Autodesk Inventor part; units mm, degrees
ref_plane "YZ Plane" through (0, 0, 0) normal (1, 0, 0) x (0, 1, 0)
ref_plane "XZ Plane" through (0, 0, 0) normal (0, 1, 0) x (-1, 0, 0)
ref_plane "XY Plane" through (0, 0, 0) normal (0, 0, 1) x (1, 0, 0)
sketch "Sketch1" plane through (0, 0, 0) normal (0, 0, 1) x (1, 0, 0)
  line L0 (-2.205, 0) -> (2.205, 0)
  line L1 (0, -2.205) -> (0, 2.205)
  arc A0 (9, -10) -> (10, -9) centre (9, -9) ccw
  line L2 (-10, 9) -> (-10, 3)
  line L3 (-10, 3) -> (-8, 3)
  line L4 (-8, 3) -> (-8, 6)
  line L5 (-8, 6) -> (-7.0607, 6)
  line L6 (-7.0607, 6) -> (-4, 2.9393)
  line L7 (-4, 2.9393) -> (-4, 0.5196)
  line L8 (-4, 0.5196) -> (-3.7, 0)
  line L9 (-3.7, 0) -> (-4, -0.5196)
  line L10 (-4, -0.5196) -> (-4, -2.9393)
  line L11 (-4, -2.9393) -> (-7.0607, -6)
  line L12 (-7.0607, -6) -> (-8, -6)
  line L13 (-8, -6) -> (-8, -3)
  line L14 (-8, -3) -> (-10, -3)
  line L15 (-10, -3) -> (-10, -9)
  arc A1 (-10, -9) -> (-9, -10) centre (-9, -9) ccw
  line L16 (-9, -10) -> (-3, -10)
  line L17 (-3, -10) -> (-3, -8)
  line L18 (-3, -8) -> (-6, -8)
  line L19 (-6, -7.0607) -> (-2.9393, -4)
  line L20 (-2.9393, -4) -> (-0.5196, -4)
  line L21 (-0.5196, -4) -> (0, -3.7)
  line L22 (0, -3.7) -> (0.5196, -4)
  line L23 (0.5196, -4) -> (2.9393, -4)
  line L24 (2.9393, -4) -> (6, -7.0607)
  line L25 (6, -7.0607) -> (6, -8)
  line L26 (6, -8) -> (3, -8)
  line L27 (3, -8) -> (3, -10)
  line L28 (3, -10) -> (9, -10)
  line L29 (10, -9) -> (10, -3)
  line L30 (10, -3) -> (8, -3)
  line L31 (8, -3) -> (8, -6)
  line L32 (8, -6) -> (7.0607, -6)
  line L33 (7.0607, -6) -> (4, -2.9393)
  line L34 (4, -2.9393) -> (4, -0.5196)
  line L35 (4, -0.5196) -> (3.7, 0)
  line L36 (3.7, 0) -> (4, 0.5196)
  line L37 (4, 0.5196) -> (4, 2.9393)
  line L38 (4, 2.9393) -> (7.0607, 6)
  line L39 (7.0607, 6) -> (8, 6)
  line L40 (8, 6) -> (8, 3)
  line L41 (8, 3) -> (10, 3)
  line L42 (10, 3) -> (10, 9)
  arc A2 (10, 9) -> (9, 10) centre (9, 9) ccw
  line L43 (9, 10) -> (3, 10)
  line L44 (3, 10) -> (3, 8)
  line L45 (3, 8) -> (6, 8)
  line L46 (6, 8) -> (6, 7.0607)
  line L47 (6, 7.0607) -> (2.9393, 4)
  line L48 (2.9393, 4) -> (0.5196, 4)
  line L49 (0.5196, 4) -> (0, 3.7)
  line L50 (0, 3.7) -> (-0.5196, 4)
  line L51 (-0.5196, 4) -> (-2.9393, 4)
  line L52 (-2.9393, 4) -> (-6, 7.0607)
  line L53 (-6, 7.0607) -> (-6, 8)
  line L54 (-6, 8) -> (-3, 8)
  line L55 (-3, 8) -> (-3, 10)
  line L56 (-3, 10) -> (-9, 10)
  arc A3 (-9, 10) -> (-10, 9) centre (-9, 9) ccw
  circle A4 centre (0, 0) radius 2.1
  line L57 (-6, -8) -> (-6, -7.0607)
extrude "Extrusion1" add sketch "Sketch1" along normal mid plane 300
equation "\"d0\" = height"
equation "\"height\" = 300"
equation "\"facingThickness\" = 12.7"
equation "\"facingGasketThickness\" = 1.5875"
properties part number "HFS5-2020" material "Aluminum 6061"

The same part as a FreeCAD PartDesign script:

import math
import FreeCAD as App
import Part
import Sketcher
from FreeCAD import Vector
Q = App.Units.Quantity

doc = App.newDocument("Part")
body = doc.addObject("PartDesign::Body", "Body")

# Sketch on XY plane
sketch1 = doc.addObject("Sketcher::SketchObject", "Sketch")
body.addObject(sketch1)
sketch1.AttachmentSupport = (doc.XY_Plane, [""])
sketch1.MapMode = "FlatFace"
sketch1.addGeometry(Part.LineSegment(Vector(3, -10, 0), Vector(9, -10, 0)), False)
sketch1.addGeometry(Part.ArcOfCircle(Part.Circle(Vector(9, -9, 0), Vector(0, 0, 1), 1), math.radians(-90), math.radians(0)), False)
sketch1.addGeometry(Part.LineSegment(Vector(10, -9, 0), Vector(10, -3, 0)), False)
sketch1.addGeometry(Part.LineSegment(Vector(10, -3, 0), Vector(8, -3, 0)), False)
sketch1.addGeometry(Part.LineSegment(Vector(8, -3, 0), Vector(8, -6, 0)), False)
sketch1.addGeometry(Part.LineSegment(Vector(8, -6, 0), Vector(7.0607, -6, 0)), False)
sketch1.addGeometry(Part.LineSegment(Vector(7.0607, -6, 0), Vector(4, -2.9393, 0)), False)
sketch1.addGeometry(Part.LineSegment(Vector(4, -2.9393, 0), Vector(4, -0.5196, 0)), False)
sketch1.addGeometry(Part.LineSegment(Vector(4, -0.5196, 0), Vector(3.7, 0, 0)), False)
sketch1.addGeometry(Part.LineSegment(Vector(3.7, 0, 0), Vector(4, 0.5196, 0)), False)
sketch1.addGeometry(Part.LineSegment(Vector(4, 0.5196, 0), Vector(4, 2.9393, 0)), False)
sketch1.addGeometry(Part.LineSegment(Vector(4, 2.9393, 0), Vector(7.0607, 6, 0)), False)
sketch1.addGeometry(Part.LineSegment(Vector(7.0607, 6, 0), Vector(8, 6, 0)), False)
sketch1.addGeometry(Part.LineSegment(Vector(8, 6, 0), Vector(8, 3, 0)), False)
sketch1.addGeometry(Part.LineSegment(Vector(8, 3, 0), Vector(10, 3, 0)), False)
sketch1.addGeometry(Part.LineSegment(Vector(10, 3, 0), Vector(10, 9, 0)), False)
sketch1.addGeometry(Part.ArcOfCircle(Part.Circle(Vector(9, 9, 0), Vector(0, 0, 1), 1), math.radians(0), math.radians(90)), False)
sketch1.addGeometry(Part.LineSegment(Vector(9, 10, 0), Vector(3, 10, 0)), False)
sketch1.addGeometry(Part.LineSegment(Vector(3, 10, 0), Vector(3, 8, 0)), False)
sketch1.addGeometry(Part.LineSegment(Vector(3, 8, 0), Vector(6, 8, 0)), False)
sketch1.addGeometry(Part.LineSegment(Vector(6, 8, 0), Vector(6, 7.0607, 0)), False)
sketch1.addGeometry(Part.LineSegment(Vector(6, 7.0607, 0), Vector(2.9393, 4, 0)), False)
sketch1.addGeometry(Part.LineSegment(Vector(2.9393, 4, 0), Vector(0.5196, 4, 0)), False)
sketch1.addGeometry(Part.LineSegment(Vector(0.5196, 4, 0), Vector(0, 3.7, 0)), False)
sketch1.addGeometry(Part.LineSegment(Vector(0, 3.7, 0), Vector(-0.5196, 4, 0)), False)
sketch1.addGeometry(Part.LineSegment(Vector(-0.5196, 4, 0), Vector(-2.9393, 4, 0)), False)
sketch1.addGeometry(Part.LineSegment(Vector(-2.9393, 4, 0), Vector(-6, 7.0607, 0)), False)
sketch1.addGeometry(Part.LineSegment(Vector(-6, 7.0607, 0), Vector(-6, 8, 0)), False)
sketch1.addGeometry(Part.LineSegment(Vector(-6, 8, 0), Vector(-3, 8, 0)), False)
sketch1.addGeometry(Part.LineSegment(Vector(-3, 8, 0), Vector(-3, 10, 0)), False)
sketch1.addGeometry(Part.LineSegment(Vector(-3, 10, 0), Vector(-9, 10, 0)), False)
sketch1.addGeometry(Part.ArcOfCircle(Part.Circle(Vector(-9, 9, 0), Vector(0, 0, 1), 1), math.radians(90), math.radians(180)), False)
sketch1.addGeometry(Part.LineSegment(Vector(-10, 9, 0), Vector(-10, 3, 0)), False)
sketch1.addGeometry(Part.LineSegment(Vector(-10, 3, 0), Vector(-8, 3, 0)), False)
sketch1.addGeometry(Part.LineSegment(Vector(-8, 3, 0), Vector(-8, 6, 0)), False)
sketch1.addGeometry(Part.LineSegment(Vector(-8, 6, 0), Vector(-7.0607, 6, 0)), False)
sketch1.addGeometry(Part.LineSegment(Vector(-7.0607, 6, 0), Vector(-4, 2.9393, 0)), False)
sketch1.addGeometry(Part.LineSegment(Vector(-4, 2.9393, 0), Vector(-4, 0.5196, 0)), False)
sketch1.addGeometry(Part.LineSegment(Vector(-4, 0.5196, 0), Vector(-3.7, 0, 0)), False)
sketch1.addGeometry(Part.LineSegment(Vector(-3.7, 0, 0), Vector(-4, -0.5196, 0)), False)
sketch1.addGeometry(Part.LineSegment(Vector(-4, -0.5196, 0), Vector(-4, -2.9393, 0)), False)
sketch1.addGeometry(Part.LineSegment(Vector(-4, -2.9393, 0), Vector(-7.0607, -6, 0)), False)
sketch1.addGeometry(Part.LineSegment(Vector(-7.0607, -6, 0), Vector(-8, -6, 0)), False)
sketch1.addGeometry(Part.LineSegment(Vector(-8, -6, 0), Vector(-8, -3, 0)), False)
sketch1.addGeometry(Part.LineSegment(Vector(-8, -3, 0), Vector(-10, -3, 0)), False)
sketch1.addGeometry(Part.LineSegment(Vector(-10, -3, 0), Vector(-10, -9, 0)), False)
sketch1.addGeometry(Part.ArcOfCircle(Part.Circle(Vector(-9, -9, 0), Vector(0, 0, 1), 1), math.radians(180), math.radians(270)), False)
sketch1.addGeometry(Part.LineSegment(Vector(-9, -10, 0), Vector(-3, -10, 0)), False)
sketch1.addGeometry(Part.LineSegment(Vector(-3, -10, 0), Vector(-3, -8, 0)), False)
sketch1.addGeometry(Part.LineSegment(Vector(-3, -8, 0), Vector(-6, -8, 0)), False)
sketch1.addGeometry(Part.LineSegment(Vector(-6, -8, 0), Vector(-6, -7.0607, 0)), False)
sketch1.addGeometry(Part.LineSegment(Vector(-6, -7.0607, 0), Vector(-2.9393, -4, 0)), False)
sketch1.addGeometry(Part.LineSegment(Vector(-2.9393, -4, 0), Vector(-0.5196, -4, 0)), False)
sketch1.addGeometry(Part.LineSegment(Vector(-0.5196, -4, 0), Vector(0, -3.7, 0)), False)
sketch1.addGeometry(Part.LineSegment(Vector(0, -3.7, 0), Vector(0.5196, -4, 0)), False)
sketch1.addGeometry(Part.LineSegment(Vector(0.5196, -4, 0), Vector(2.9393, -4, 0)), False)
sketch1.addGeometry(Part.LineSegment(Vector(2.9393, -4, 0), Vector(6, -7.0607, 0)), False)
sketch1.addGeometry(Part.LineSegment(Vector(6, -7.0607, 0), Vector(6, -8, 0)), False)
sketch1.addGeometry(Part.LineSegment(Vector(6, -8, 0), Vector(3, -8, 0)), False)
sketch1.addGeometry(Part.LineSegment(Vector(3, -8, 0), Vector(3, -10, 0)), False)
sketch1.addGeometry(Part.Circle(Vector(0, 0, 0), Vector(0, 0, 1), 2.1), False)
sketch1.addConstraint(Sketcher.Constraint("Tangent", 0, 2, 1, 1))
sketch1.addConstraint(Sketcher.Constraint("Tangent", 1, 2, 2, 1))
sketch1.addConstraint(Sketcher.Constraint("Coincident", 2, 2, 3, 1))
sketch1.addConstraint(Sketcher.Constraint("Coincident", 3, 2, 4, 1))
sketch1.addConstraint(Sketcher.Constraint("Coincident", 4, 2, 5, 1))
sketch1.addConstraint(Sketcher.Constraint("Coincident", 5, 2, 6, 1))
sketch1.addConstraint(Sketcher.Constraint("Coincident", 6, 2, 7, 1))
sketch1.addConstraint(Sketcher.Constraint("Coincident", 7, 2, 8, 1))
sketch1.addConstraint(Sketcher.Constraint("Coincident", 8, 2, 9, 1))
sketch1.addConstraint(Sketcher.Constraint("Coincident", 9, 2, 10, 1))
sketch1.addConstraint(Sketcher.Constraint("Coincident", 10, 2, 11, 1))
sketch1.addConstraint(Sketcher.Constraint("Coincident", 11, 2, 12, 1))
sketch1.addConstraint(Sketcher.Constraint("Coincident", 12, 2, 13, 1))
sketch1.addConstraint(Sketcher.Constraint("Coincident", 13, 2, 14, 1))
sketch1.addConstraint(Sketcher.Constraint("Coincident", 14, 2, 15, 1))
sketch1.addConstraint(Sketcher.Constraint("Tangent", 15, 2, 16, 1))
sketch1.addConstraint(Sketcher.Constraint("Tangent", 16, 2, 17, 1))
sketch1.addConstraint(Sketcher.Constraint("Coincident", 17, 2, 18, 1))
sketch1.addConstraint(Sketcher.Constraint("Coincident", 18, 2, 19, 1))
sketch1.addConstraint(Sketcher.Constraint("Coincident", 19, 2, 20, 1))
sketch1.addConstraint(Sketcher.Constraint("Coincident", 20, 2, 21, 1))
sketch1.addConstraint(Sketcher.Constraint("Coincident", 21, 2, 22, 1))
sketch1.addConstraint(Sketcher.Constraint("Coincident", 22, 2, 23, 1))
sketch1.addConstraint(Sketcher.Constraint("Coincident", 23, 2, 24, 1))
sketch1.addConstraint(Sketcher.Constraint("Coincident", 24, 2, 25, 1))
sketch1.addConstraint(Sketcher.Constraint("Coincident", 25, 2, 26, 1))
sketch1.addConstraint(Sketcher.Constraint("Coincident", 26, 2, 27, 1))
sketch1.addConstraint(Sketcher.Constraint("Coincident", 27, 2, 28, 1))
sketch1.addConstraint(Sketcher.Constraint("Coincident", 28, 2, 29, 1))
sketch1.addConstraint(Sketcher.Constraint("Coincident", 29, 2, 30, 1))
sketch1.addConstraint(Sketcher.Constraint("Tangent", 30, 2, 31, 1))
sketch1.addConstraint(Sketcher.Constraint("Tangent", 31, 2, 32, 1))
sketch1.addConstraint(Sketcher.Constraint("Coincident", 32, 2, 33, 1))
sketch1.addConstraint(Sketcher.Constraint("Coincident", 33, 2, 34, 1))
sketch1.addConstraint(Sketcher.Constraint("Coincident", 34, 2, 35, 1))
sketch1.addConstraint(Sketcher.Constraint("Coincident", 35, 2, 36, 1))
sketch1.addConstraint(Sketcher.Constraint("Coincident", 36, 2, 37, 1))
sketch1.addConstraint(Sketcher.Constraint("Coincident", 37, 2, 38, 1))
sketch1.addConstraint(Sketcher.Constraint("Coincident", 38, 2, 39, 1))
sketch1.addConstraint(Sketcher.Constraint("Coincident", 39, 2, 40, 1))
sketch1.addConstraint(Sketcher.Constraint("Coincident", 40, 2, 41, 1))
sketch1.addConstraint(Sketcher.Constraint("Coincident", 41, 2, 42, 1))
sketch1.addConstraint(Sketcher.Constraint("Coincident", 42, 2, 43, 1))
sketch1.addConstraint(Sketcher.Constraint("Coincident", 43, 2, 44, 1))
sketch1.addConstraint(Sketcher.Constraint("Coincident", 44, 2, 45, 1))
sketch1.addConstraint(Sketcher.Constraint("Tangent", 45, 2, 46, 1))
sketch1.addConstraint(Sketcher.Constraint("Tangent", 46, 2, 47, 1))
sketch1.addConstraint(Sketcher.Constraint("Coincident", 47, 2, 48, 1))
sketch1.addConstraint(Sketcher.Constraint("Coincident", 48, 2, 49, 1))
sketch1.addConstraint(Sketcher.Constraint("Coincident", 49, 2, 50, 1))
sketch1.addConstraint(Sketcher.Constraint("Coincident", 50, 2, 51, 1))
sketch1.addConstraint(Sketcher.Constraint("Coincident", 51, 2, 52, 1))
sketch1.addConstraint(Sketcher.Constraint("Coincident", 52, 2, 53, 1))
sketch1.addConstraint(Sketcher.Constraint("Coincident", 53, 2, 54, 1))
sketch1.addConstraint(Sketcher.Constraint("Coincident", 54, 2, 55, 1))
sketch1.addConstraint(Sketcher.Constraint("Coincident", 55, 2, 56, 1))
sketch1.addConstraint(Sketcher.Constraint("Coincident", 56, 2, 57, 1))
sketch1.addConstraint(Sketcher.Constraint("Coincident", 57, 2, 58, 1))
sketch1.addConstraint(Sketcher.Constraint("Coincident", 58, 2, 59, 1))
sketch1.addConstraint(Sketcher.Constraint("Coincident", 59, 2, 0, 1))
sketch1.addConstraint(Sketcher.Constraint("Horizontal", 0))
sketch1.addConstraint(Sketcher.Constraint("Vertical", 2))
sketch1.addConstraint(Sketcher.Constraint("Horizontal", 3))
sketch1.addConstraint(Sketcher.Constraint("Vertical", 4))
sketch1.addConstraint(Sketcher.Constraint("Horizontal", 5))
sketch1.addConstraint(Sketcher.Constraint("Vertical", 7))
sketch1.addConstraint(Sketcher.Constraint("Vertical", 10))
sketch1.addConstraint(Sketcher.Constraint("Horizontal", 12))
sketch1.addConstraint(Sketcher.Constraint("Vertical", 13))
sketch1.addConstraint(Sketcher.Constraint("Horizontal", 14))
sketch1.addConstraint(Sketcher.Constraint("Vertical", 15))
sketch1.addConstraint(Sketcher.Constraint("Horizontal", 17))
sketch1.addConstraint(Sketcher.Constraint("Vertical", 18))
sketch1.addConstraint(Sketcher.Constraint("Horizontal", 19))
sketch1.addConstraint(Sketcher.Constraint("Vertical", 20))
sketch1.addConstraint(Sketcher.Constraint("Horizontal", 22))
sketch1.addConstraint(Sketcher.Constraint("Horizontal", 25))
sketch1.addConstraint(Sketcher.Constraint("Vertical", 27))
sketch1.addConstraint(Sketcher.Constraint("Horizontal", 28))
sketch1.addConstraint(Sketcher.Constraint("Vertical", 29))
sketch1.addConstraint(Sketcher.Constraint("Horizontal", 30))
sketch1.addConstraint(Sketcher.Constraint("Vertical", 32))
sketch1.addConstraint(Sketcher.Constraint("Horizontal", 33))
sketch1.addConstraint(Sketcher.Constraint("Vertical", 34))
sketch1.addConstraint(Sketcher.Constraint("Horizontal", 35))
sketch1.addConstraint(Sketcher.Constraint("Vertical", 37))
sketch1.addConstraint(Sketcher.Constraint("Vertical", 40))
sketch1.addConstraint(Sketcher.Constraint("Horizontal", 42))
sketch1.addConstraint(Sketcher.Constraint("Vertical", 43))
sketch1.addConstraint(Sketcher.Constraint("Horizontal", 44))
sketch1.addConstraint(Sketcher.Constraint("Vertical", 45))
sketch1.addConstraint(Sketcher.Constraint("Horizontal", 47))
sketch1.addConstraint(Sketcher.Constraint("Vertical", 48))
sketch1.addConstraint(Sketcher.Constraint("Horizontal", 49))
sketch1.addConstraint(Sketcher.Constraint("Vertical", 50))
sketch1.addConstraint(Sketcher.Constraint("Horizontal", 52))
sketch1.addConstraint(Sketcher.Constraint("Horizontal", 55))
sketch1.addConstraint(Sketcher.Constraint("Vertical", 57))
sketch1.addConstraint(Sketcher.Constraint("Horizontal", 58))
sketch1.addConstraint(Sketcher.Constraint("Vertical", 59))
sketch1.addConstraint(Sketcher.Constraint("Coincident", 60, 3, -1, 1))
sketch1.addConstraint(Sketcher.Constraint("Equal", 1, 16))
sketch1.addConstraint(Sketcher.Constraint("Equal", 16, 31))
sketch1.addConstraint(Sketcher.Constraint("Equal", 31, 46))
sketch1.addConstraint(Sketcher.Constraint("Symmetric", 1, 3, 31, 3, -1, 1))
sketch1.addConstraint(Sketcher.Constraint("Symmetric", 16, 3, 46, 3, -1, 1))
sketch1.addConstraint(Sketcher.Constraint("Symmetric", 3, 2, 33, 2, -1, 1))
sketch1.addConstraint(Sketcher.Constraint("Symmetric", 5, 2, 35, 2, -1, 1))
sketch1.addConstraint(Sketcher.Constraint("Symmetric", 6, 2, 36, 2, -1, 1))
sketch1.addConstraint(Sketcher.Constraint("Symmetric", 8, 2, 38, 2, -1, 1))
sketch1.addConstraint(Sketcher.Constraint("Symmetric", 9, 2, 39, 2, -1, 1))
sketch1.addConstraint(Sketcher.Constraint("Symmetric", 11, 2, 41, 2, -1, 1))
sketch1.addConstraint(Sketcher.Constraint("Symmetric", 13, 2, 43, 2, -1, 1))
sketch1.addConstraint(Sketcher.Constraint("Symmetric", 18, 2, 48, 2, -1, 1))
sketch1.addConstraint(Sketcher.Constraint("Symmetric", 20, 2, 50, 2, -1, 1))
sketch1.addConstraint(Sketcher.Constraint("Symmetric", 21, 2, 51, 2, -1, 1))
sketch1.addConstraint(Sketcher.Constraint("Symmetric", 23, 2, 53, 2, -1, 1))
sketch1.addConstraint(Sketcher.Constraint("Symmetric", 24, 2, 54, 2, -1, 1))
sketch1.addConstraint(Sketcher.Constraint("Symmetric", 26, 2, 56, 2, -1, 1))
sketch1.addConstraint(Sketcher.Constraint("Symmetric", 28, 2, 58, 2, -1, 1))
sketch1.addConstraint(Sketcher.Constraint("Symmetric", 16, 3, 31, 3, -2))
sketch1.addConstraint(Sketcher.Constraint("Symmetric", 22, 2, 24, 2, -2))
sketch1.addConstraint(Sketcher.Constraint("Symmetric", 20, 2, 26, 2, -2))
sketch1.addConstraint(Sketcher.Constraint("Symmetric", 18, 2, 28, 2, -2))
sketch1.addConstraint(Sketcher.Constraint("Symmetric", 13, 2, 33, 2, -2))
sketch1.addConstraint(Sketcher.Constraint("Symmetric", 11, 2, 35, 2, -2))
sketch1.addConstraint(Sketcher.Constraint("Symmetric", 10, 2, 36, 2, -2))
sketch1.addConstraint(Sketcher.Constraint("PointOnObject", 8, 2, -1))
sketch1.addConstraint(Sketcher.Constraint("PointOnObject", 23, 2, -2))
sketch1.addConstraint(Sketcher.Constraint("Perpendicular", 6, 11))
sketch1.addConstraint(Sketcher.Constraint("Parallel", 11, 21))
sketch1.addConstraint(Sketcher.Constraint("Perpendicular", 8, 23))
sketch1.addConstraint(Sketcher.Constraint("Perpendicular", 9, 24))
sketch1.addConstraint(Sketcher.Constraint("Perpendicular", 21, 26))
sketch1.addConstraint(Sketcher.Constraint("Perpendicular", 23, 38))
sketch1.addConstraint(Sketcher.Constraint("Perpendicular", 36, 41))
sketch1.addConstraint(Sketcher.Constraint("Perpendicular", 38, 53))
sketch1.addConstraint(Sketcher.Constraint("Perpendicular", 51, 56))
sketch1.addConstraint(Sketcher.Constraint("Equal", 47, 2))
sketch1.addConstraint(Sketcher.Constraint("Equal", 58, 4))
sketch1.addConstraint(Sketcher.Constraint("Equal", 55, 7))
sketch1.addConstraint(Sketcher.Constraint("Equal", 44, 18))
sketch1.addConstraint(Sketcher.Constraint("Equal", 42, 20))
sketch1.addConstraint(Sketcher.Constraint("Equal", 11, 21))
sketch1.addConstraint(Sketcher.Constraint("Equal", 9, 23))
sketch1.addConstraint(Sketcher.Constraint("Radius", 1, Q("1 mm")))
sketch1.addConstraint(Sketcher.Constraint("Diameter", 60, Q("4.2 mm")))
sketch1.addConstraint(Sketcher.Constraint("DistanceX", 0, 1, 0, 2, Q("6 mm")))
sketch1.addConstraint(Sketcher.Constraint("DistanceX", 3, 2, 3, 1, Q("2 mm")))
sketch1.addConstraint(Sketcher.Constraint("DistanceX", 19, 1, 19, 2, Q("3 mm")))
sketch1.addConstraint(Sketcher.Constraint("Angle", 8, Q("120.0007 deg")))
sketch1.addConstraint(Sketcher.Constraint("DistanceX", -1, 1, 1, 3, Q("9 mm")))
sketch1.addConstraint(Sketcher.Constraint("DistanceX", -1, 1, 6, 2, Q("4 mm")))
sketch1.addConstraint(Sketcher.Constraint("Distance", 8, Q("0.6 mm")))
sketch1.addConstraint(Sketcher.Constraint("DistanceX", 5, 2, 5, 1, Q("0.9393 mm")))
pad1 = doc.addObject("PartDesign::Pad", "Pad")
body.addObject(pad1)
pad1.Profile = sketch1
pad1.Length = 300
pad1.Midplane = True

doc.recompute()
